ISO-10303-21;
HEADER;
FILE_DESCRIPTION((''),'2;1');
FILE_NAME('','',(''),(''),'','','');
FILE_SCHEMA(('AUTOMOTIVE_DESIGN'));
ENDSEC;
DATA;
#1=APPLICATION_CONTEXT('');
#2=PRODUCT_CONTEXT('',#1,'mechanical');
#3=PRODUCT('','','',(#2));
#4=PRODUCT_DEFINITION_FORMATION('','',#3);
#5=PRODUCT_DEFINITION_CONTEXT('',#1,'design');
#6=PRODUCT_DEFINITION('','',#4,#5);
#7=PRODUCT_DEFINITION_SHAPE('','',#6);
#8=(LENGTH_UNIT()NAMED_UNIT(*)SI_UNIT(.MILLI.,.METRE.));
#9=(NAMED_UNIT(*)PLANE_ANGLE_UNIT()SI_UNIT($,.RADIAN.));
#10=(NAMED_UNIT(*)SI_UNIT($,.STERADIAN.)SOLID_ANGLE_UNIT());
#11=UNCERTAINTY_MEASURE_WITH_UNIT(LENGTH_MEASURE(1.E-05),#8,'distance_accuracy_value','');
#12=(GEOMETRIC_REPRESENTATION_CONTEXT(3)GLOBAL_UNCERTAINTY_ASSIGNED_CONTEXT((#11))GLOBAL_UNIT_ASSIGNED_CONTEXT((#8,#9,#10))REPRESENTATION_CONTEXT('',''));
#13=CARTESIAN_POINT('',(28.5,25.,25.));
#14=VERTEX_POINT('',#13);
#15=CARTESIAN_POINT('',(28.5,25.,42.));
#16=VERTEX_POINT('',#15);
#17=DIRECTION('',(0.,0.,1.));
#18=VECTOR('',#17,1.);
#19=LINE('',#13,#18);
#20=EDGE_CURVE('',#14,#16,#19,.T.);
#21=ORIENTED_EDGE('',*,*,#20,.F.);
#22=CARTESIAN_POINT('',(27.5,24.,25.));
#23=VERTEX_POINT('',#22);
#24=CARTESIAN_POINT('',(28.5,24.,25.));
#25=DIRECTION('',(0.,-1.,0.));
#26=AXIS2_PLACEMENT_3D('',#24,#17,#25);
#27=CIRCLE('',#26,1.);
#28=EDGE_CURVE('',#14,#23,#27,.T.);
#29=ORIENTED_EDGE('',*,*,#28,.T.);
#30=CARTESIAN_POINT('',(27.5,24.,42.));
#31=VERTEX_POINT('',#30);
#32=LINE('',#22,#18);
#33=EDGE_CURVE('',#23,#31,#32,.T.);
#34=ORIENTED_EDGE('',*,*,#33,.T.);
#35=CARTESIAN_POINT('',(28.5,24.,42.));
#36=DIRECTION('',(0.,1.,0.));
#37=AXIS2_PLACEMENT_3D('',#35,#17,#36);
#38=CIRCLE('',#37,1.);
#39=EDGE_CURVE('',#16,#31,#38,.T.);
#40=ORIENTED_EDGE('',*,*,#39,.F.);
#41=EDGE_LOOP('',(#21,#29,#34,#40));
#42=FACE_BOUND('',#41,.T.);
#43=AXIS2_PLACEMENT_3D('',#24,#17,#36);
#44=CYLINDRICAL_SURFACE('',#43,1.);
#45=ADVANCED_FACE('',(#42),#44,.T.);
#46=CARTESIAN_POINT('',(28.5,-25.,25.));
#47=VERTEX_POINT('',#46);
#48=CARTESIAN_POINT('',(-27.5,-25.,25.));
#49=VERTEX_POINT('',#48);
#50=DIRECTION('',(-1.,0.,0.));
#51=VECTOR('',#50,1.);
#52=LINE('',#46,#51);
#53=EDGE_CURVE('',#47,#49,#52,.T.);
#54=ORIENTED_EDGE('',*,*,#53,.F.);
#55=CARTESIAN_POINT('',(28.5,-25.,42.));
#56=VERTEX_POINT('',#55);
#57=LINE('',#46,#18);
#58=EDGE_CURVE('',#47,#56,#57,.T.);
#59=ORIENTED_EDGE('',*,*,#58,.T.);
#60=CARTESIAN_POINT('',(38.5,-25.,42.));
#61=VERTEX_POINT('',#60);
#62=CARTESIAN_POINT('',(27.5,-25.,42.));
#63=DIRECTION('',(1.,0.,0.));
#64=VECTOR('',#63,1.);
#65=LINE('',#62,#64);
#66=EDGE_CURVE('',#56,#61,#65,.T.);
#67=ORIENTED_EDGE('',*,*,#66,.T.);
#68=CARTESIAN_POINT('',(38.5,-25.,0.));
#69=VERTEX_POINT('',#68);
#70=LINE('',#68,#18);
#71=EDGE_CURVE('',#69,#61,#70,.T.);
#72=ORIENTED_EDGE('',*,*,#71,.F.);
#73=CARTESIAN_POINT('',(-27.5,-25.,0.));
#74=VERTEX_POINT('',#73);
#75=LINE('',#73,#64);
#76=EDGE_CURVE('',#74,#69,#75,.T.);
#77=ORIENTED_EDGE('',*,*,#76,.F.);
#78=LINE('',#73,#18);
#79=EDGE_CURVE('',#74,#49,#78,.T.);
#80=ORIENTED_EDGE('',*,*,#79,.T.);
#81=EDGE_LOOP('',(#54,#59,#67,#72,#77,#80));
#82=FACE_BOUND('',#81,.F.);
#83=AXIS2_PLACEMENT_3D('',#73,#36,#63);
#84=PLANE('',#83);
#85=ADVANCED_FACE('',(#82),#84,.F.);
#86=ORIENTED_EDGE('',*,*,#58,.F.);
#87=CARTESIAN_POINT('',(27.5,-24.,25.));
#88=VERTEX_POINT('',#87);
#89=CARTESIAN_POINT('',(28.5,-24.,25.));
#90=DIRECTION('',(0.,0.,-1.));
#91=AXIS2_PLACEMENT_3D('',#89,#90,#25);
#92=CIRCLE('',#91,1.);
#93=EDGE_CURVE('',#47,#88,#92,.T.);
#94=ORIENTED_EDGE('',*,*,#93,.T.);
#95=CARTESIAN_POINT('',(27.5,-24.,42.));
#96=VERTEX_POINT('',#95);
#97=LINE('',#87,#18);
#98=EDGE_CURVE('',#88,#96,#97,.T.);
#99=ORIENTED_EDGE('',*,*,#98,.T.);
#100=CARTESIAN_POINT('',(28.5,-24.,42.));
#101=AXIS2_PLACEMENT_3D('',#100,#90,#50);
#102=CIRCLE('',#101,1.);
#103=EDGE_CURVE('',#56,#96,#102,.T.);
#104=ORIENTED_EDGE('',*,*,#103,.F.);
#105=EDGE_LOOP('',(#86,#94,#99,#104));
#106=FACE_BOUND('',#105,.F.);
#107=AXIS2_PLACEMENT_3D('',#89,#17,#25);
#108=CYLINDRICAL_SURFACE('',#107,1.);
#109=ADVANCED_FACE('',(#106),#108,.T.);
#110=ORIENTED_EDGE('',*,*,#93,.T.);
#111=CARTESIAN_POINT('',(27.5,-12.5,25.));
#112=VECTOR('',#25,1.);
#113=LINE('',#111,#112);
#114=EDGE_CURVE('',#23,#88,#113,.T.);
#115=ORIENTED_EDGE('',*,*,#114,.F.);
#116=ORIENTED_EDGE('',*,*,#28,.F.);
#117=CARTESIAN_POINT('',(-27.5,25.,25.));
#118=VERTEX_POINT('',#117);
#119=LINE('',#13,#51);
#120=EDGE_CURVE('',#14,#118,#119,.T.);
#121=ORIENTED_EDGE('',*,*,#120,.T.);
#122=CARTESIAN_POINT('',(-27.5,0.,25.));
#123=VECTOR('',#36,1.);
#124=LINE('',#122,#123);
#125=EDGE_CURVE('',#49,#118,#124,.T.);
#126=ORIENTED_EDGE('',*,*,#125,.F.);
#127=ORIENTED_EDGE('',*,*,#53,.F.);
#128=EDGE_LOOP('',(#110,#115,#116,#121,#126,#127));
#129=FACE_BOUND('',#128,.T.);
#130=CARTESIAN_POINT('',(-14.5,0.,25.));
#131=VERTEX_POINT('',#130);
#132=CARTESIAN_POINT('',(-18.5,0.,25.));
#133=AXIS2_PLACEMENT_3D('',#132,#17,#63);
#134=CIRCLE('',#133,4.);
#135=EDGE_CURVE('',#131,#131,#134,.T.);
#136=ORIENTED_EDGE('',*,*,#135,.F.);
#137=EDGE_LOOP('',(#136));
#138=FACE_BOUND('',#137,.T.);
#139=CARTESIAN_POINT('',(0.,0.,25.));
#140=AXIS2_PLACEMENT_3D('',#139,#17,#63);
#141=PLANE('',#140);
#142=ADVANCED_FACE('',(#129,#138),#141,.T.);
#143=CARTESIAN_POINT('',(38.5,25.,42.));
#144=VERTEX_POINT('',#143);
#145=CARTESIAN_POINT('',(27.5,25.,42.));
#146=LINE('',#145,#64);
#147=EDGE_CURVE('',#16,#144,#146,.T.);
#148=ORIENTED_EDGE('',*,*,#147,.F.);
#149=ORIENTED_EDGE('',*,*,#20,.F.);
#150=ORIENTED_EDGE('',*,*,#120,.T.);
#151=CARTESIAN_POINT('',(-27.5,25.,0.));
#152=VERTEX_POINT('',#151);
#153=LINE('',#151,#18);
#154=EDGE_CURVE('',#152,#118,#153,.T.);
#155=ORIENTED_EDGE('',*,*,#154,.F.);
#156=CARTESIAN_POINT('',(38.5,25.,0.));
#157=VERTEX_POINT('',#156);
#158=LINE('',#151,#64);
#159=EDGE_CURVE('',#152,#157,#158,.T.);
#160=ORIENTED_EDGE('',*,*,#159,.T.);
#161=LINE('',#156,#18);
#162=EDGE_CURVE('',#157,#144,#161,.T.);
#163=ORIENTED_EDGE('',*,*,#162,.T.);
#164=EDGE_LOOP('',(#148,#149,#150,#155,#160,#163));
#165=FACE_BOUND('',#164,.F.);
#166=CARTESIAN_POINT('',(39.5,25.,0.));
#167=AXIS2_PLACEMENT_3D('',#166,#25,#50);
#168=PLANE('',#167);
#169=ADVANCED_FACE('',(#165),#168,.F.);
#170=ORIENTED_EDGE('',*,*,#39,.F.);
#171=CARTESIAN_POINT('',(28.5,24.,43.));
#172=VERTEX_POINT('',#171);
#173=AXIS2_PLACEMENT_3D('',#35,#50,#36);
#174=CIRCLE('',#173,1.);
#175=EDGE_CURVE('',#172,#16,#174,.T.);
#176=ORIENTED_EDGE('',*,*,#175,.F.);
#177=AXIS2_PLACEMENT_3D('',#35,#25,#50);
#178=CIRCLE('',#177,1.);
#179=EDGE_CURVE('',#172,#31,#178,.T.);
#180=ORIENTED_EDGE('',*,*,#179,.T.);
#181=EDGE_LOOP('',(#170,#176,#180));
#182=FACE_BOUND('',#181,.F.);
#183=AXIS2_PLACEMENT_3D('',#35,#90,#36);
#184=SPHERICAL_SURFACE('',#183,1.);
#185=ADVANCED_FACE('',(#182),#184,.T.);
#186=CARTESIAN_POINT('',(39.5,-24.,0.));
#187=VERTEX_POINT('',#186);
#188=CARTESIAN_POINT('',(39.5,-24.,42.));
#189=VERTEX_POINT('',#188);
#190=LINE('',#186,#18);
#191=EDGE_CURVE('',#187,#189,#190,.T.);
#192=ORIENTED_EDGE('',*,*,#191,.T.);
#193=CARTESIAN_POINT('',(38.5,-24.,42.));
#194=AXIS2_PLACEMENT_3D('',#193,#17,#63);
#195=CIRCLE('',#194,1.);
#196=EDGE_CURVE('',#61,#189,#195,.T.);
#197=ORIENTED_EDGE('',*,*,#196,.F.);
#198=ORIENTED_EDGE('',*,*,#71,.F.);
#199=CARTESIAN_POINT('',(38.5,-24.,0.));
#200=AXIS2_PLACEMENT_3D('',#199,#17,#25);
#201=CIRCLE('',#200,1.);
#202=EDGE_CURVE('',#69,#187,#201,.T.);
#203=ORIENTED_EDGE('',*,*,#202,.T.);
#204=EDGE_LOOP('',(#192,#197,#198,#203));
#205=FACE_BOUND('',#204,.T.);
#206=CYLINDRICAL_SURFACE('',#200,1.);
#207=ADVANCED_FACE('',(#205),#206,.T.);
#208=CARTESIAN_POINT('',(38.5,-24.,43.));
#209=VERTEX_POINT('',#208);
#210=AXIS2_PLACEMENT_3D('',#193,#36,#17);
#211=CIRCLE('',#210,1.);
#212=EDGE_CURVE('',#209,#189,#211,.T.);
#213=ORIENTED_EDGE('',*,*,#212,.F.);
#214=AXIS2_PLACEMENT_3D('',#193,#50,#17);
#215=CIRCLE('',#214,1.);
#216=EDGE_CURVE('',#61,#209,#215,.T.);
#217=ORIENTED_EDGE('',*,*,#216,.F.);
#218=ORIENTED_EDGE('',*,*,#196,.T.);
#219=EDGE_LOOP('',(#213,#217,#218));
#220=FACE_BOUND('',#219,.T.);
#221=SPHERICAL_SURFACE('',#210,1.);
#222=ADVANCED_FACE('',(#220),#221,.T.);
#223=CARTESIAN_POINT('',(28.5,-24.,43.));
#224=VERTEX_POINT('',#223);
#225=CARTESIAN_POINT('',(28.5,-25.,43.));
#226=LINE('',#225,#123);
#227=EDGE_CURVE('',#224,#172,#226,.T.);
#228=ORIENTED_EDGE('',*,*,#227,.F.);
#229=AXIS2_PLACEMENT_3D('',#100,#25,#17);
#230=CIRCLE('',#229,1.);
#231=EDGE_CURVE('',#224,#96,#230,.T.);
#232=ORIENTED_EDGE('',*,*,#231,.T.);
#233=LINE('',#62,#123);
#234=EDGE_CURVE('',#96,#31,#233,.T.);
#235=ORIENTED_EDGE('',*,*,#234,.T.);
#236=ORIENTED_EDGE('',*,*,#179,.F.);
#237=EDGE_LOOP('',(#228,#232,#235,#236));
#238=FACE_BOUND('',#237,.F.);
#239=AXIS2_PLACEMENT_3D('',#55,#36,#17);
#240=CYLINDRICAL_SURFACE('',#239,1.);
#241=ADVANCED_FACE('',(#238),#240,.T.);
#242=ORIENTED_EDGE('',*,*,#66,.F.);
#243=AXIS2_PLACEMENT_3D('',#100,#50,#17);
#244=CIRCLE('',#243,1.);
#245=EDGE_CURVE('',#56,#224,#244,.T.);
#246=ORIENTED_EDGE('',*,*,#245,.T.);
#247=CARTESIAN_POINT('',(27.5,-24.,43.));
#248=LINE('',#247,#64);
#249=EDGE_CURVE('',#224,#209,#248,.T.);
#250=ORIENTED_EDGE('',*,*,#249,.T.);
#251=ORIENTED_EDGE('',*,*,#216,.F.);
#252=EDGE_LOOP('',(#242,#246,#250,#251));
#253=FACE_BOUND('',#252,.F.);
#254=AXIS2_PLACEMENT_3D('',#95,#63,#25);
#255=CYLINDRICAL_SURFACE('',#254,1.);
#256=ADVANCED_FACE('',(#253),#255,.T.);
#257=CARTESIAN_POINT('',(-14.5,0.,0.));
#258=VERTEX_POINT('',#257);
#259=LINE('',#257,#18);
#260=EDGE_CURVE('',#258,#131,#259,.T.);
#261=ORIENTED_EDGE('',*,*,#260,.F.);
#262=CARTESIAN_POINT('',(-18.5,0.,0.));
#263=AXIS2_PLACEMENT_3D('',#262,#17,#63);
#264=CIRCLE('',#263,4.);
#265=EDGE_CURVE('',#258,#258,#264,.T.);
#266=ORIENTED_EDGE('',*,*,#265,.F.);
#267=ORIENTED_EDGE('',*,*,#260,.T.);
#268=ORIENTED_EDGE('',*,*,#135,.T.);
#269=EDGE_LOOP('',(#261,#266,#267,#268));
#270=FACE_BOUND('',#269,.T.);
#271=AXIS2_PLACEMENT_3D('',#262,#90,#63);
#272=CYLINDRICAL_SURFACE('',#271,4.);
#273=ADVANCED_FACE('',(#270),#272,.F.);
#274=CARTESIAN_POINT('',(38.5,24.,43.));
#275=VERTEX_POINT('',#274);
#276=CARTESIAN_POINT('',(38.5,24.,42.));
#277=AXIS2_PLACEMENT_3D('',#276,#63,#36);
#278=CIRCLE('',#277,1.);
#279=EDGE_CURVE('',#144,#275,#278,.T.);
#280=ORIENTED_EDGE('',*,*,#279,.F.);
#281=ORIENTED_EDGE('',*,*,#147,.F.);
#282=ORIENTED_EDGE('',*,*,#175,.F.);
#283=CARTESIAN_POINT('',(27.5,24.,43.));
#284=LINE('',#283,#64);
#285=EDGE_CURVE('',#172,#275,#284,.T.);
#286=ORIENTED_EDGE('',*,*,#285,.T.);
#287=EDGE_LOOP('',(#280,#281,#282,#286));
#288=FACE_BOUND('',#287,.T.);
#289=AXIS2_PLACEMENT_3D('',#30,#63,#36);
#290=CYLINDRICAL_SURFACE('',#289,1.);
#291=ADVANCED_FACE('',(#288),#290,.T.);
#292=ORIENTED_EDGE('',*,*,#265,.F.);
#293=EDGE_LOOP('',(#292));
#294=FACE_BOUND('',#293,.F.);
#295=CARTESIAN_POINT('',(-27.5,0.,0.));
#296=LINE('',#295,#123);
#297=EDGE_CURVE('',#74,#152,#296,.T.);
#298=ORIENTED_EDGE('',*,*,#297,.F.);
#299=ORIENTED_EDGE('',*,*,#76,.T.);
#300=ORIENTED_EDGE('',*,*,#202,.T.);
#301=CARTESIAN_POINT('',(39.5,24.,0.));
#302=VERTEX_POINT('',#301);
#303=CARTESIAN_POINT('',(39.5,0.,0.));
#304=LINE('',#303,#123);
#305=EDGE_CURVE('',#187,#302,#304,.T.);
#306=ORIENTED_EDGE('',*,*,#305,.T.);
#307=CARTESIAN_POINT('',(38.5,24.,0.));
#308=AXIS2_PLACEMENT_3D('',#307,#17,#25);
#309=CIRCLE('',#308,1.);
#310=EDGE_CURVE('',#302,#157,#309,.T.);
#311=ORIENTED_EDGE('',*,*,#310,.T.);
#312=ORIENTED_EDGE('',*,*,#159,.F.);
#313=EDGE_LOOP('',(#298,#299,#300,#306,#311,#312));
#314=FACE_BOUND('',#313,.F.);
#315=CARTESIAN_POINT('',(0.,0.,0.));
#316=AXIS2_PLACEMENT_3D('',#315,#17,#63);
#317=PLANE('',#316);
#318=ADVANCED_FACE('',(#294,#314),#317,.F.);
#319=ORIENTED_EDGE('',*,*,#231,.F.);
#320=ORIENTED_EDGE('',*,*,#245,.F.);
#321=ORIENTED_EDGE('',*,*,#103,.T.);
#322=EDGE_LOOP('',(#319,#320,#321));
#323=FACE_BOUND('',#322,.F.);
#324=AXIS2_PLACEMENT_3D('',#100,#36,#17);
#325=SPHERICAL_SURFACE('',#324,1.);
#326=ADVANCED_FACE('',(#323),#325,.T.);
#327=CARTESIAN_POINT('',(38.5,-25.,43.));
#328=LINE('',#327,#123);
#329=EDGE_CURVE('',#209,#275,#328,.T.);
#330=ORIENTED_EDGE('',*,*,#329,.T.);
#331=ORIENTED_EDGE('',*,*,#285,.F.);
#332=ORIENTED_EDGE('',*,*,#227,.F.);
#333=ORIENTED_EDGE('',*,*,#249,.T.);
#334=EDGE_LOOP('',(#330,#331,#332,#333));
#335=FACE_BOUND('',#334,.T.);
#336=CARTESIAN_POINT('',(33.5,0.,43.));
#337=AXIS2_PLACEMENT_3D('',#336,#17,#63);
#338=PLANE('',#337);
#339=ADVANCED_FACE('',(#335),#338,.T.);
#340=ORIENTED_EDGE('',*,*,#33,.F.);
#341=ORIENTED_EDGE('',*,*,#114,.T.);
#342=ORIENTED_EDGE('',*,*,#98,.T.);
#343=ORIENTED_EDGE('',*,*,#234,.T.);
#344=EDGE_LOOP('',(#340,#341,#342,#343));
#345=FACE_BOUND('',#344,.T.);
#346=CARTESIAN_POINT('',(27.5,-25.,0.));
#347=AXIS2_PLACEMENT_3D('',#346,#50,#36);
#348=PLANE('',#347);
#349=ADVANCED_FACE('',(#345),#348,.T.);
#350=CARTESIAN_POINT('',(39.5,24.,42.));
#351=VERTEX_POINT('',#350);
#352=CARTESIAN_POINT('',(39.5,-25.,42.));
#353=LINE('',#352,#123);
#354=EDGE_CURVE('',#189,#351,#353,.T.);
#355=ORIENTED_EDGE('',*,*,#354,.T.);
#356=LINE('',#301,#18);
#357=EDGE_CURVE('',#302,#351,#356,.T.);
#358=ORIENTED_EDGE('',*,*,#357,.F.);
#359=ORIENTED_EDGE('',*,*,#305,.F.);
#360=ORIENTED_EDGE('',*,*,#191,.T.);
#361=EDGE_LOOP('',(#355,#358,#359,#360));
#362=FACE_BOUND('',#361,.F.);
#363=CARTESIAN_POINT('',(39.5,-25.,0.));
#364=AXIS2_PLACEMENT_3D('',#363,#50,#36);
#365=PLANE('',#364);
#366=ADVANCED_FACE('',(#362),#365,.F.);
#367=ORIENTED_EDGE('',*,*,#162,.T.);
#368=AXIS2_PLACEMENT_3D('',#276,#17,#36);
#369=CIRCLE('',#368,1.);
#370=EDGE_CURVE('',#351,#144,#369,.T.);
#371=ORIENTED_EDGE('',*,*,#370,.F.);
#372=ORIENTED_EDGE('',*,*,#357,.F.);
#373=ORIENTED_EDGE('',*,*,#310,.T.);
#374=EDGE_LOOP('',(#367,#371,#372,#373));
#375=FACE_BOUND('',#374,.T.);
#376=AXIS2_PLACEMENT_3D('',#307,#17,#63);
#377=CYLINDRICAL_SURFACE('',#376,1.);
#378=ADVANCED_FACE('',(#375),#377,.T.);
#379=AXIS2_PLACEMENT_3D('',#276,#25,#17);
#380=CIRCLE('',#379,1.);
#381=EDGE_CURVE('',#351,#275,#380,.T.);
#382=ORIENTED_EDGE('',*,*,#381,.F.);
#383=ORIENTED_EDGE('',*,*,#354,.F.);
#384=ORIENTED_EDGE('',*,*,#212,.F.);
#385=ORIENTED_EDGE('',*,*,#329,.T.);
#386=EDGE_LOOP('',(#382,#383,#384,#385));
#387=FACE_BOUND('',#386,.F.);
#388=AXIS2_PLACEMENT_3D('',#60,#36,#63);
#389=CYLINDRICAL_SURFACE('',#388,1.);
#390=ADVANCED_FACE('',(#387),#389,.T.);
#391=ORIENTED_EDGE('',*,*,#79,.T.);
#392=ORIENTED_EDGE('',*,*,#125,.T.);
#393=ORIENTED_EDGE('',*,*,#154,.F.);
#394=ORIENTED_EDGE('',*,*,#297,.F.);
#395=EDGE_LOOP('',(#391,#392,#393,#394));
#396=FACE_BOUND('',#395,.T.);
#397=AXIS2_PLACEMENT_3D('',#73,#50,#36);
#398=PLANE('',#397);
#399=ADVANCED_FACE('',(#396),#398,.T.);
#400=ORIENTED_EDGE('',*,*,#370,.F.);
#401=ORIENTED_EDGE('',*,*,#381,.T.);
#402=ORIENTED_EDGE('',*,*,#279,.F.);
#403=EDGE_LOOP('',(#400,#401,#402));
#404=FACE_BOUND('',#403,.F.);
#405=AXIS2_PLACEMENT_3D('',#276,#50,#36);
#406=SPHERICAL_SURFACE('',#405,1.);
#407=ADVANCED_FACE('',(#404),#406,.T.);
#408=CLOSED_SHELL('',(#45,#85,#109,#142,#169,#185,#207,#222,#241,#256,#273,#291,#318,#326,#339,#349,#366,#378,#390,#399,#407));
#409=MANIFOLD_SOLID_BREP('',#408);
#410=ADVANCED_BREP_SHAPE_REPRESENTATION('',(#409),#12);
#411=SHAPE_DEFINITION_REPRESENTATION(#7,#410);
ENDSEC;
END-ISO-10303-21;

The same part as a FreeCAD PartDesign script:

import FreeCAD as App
import Part
import Sketcher

V = App.Vector
Q = App.Units.Quantity


def edges_at(feature, points):
    """Names of the edges that pass closest to the given points."""
    edges = feature.Shape.Edges
    near = lambda p: min(range(len(edges)), key=lambda i: edges[i].distToShape(Part.Vertex(*p))[0])
    return sorted({f"Edge{near(p) + 1}" for p in points})

doc = App.newDocument("Part")
body = doc.addObject("PartDesign::Body", "Body")

# Sketch on XY plane
sketch1 = body.newObject("Sketcher::SketchObject", "Sketch")
sketch1.AttachmentSupport = (doc.getObject("XY_Plane"), [""])
sketch1.MapMode = "FlatFace"
sketch1.addGeometry([
    Part.LineSegment(V(-27.5, 25, 0), V(-27.5, -25, 0)),  # 0
    Part.LineSegment(V(-27.5, -25, 0), V(39.5, -25, 0)),  # 1
    Part.LineSegment(V(39.5, -25, 0), V(39.5, 25, 0)),  # 2
    Part.LineSegment(V(39.5, 25, 0), V(-27.5, 25, 0)),  # 3
    Part.Circle(V(-18.5, 0, 0), V(0, 0, 1), 4),  # 4
], False)
sketch1.addConstraint([
    Sketcher.Constraint("Coincident", 0, 2, 1, 1),
    Sketcher.Constraint("Coincident", 1, 2, 2, 1),
    Sketcher.Constraint("Coincident", 2, 2, 3, 1),
    Sketcher.Constraint("Coincident", 3, 2, 0, 1),
    Sketcher.Constraint("Vertical", 0),
    Sketcher.Constraint("Horizontal", 1),
    Sketcher.Constraint("Vertical", 2),
    Sketcher.Constraint("Horizontal", 3),
    Sketcher.Constraint("PointOnObject", 4, 3, -1),
    Sketcher.Constraint("Diameter", 4, Q("8 mm")),
    Sketcher.Constraint("DistanceX", 1, 1, 1, 2, Q("67 mm")),
    Sketcher.Constraint("DistanceY", 0, 2, 0, 1, Q("50 mm")),
    Sketcher.Constraint("DistanceY", 0, 2, -1, 1, Q("25 mm")),
    Sketcher.Constraint("DistanceX", 0, 2, 4, 3, Q("9 mm")),
    Sketcher.Constraint("DistanceX", 4, 3, -1, 1, Q("18.5 mm")),
])
pad1 = body.newObject("PartDesign::Pad", "Pad")
pad1.Profile = sketch1
pad1.Length = 25

# Sketch on XY plane
sketch2 = body.newObject("Sketcher::SketchObject", "Sketch001")
sketch2.AttachmentSupport = (doc.getObject("XY_Plane"), [""])
sketch2.MapMode = "FlatFace"
sketch2.addGeometry([
    Part.LineSegment(V(28, 25, 0), V(28, -25, 0)),
    Part.LineSegment(V(28, -25, 0), V(40, -25, 0)),
    Part.LineSegment(V(40, -25, 0), V(40, 25, 0)),
    Part.LineSegment(V(40, 25, 0), V(28, 25, 0)),
], False)
sketch2.addConstraint([
    Sketcher.Constraint("Coincident", 0, 2, 1, 1),
    Sketcher.Constraint("Coincident", 1, 2, 2, 1),
    Sketcher.Constraint("Coincident", 2, 2, 3, 1),
    Sketcher.Constraint("Coincident", 3, 2, 0, 1),
    Sketcher.Constraint("Vertical", 0),
    Sketcher.Constraint("Horizontal", 1),
    Sketcher.Constraint("Vertical", 2),
    Sketcher.Constraint("Horizontal", 3),
    Sketcher.Constraint("DistanceX", 1, 1, 1, 2, Q("12 mm")),
    Sketcher.Constraint("DistanceY", 0, 2, 0, 1, Q("50 mm")),
    Sketcher.Constraint("DistanceY", 0, 2, -1, 1, Q("25 mm")),
    Sketcher.Constraint("DistanceX", -1, 1, 0, 2, Q("27.5 mm")),
])
pad2 = body.newObject("PartDesign::Pad", "Pad001")
pad2.Profile = sketch2
pad2.Length = 43
doc.recompute()

fillet = body.newObject("PartDesign::Fillet", "Fillet")
fillet.Base = (pad2, edges_at(pad2, [
    (27.5, 25, 34),
    (33.5, 25, 43),
    (39.5, 25, 21.5),
    (39.5, 0, 43),
    (27.5, 0, 43),
    (33.5, -25, 43),
    (27.5, -25, 34),
    (39.5, -25, 21.5),
]))
fillet.Radius = 1

doc.recompute()
